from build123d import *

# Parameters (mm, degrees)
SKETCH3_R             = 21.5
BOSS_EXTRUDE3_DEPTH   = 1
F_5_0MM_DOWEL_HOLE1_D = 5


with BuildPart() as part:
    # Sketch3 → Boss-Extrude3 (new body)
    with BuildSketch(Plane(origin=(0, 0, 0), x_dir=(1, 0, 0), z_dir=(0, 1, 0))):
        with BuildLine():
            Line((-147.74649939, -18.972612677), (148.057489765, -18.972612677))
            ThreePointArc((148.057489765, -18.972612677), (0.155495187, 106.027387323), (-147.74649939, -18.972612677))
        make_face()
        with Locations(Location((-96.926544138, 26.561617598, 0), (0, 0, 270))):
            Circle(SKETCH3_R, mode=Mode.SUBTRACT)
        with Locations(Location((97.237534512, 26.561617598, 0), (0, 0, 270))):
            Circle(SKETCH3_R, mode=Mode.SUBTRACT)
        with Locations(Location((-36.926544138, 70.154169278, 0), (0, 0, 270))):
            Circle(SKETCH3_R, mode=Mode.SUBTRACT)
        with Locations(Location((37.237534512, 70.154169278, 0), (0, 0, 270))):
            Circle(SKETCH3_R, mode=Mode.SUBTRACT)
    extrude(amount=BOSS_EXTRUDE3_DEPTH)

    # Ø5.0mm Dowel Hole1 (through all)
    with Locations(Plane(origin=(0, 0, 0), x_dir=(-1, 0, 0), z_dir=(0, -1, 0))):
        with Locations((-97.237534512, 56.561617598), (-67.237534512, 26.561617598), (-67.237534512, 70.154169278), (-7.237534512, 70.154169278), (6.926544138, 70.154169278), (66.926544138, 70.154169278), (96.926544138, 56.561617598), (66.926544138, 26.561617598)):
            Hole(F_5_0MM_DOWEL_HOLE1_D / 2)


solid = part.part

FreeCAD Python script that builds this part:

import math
import FreeCAD as App
import Part
import Sketcher
from FreeCAD import Vector

doc = App.newDocument("Part")
body = doc.addObject("PartDesign::Body", "Body")

# Sketch on XZ plane
sketch1 = body.newObject("Sketcher::SketchObject", "Sketch")
sketch1.AttachmentSupport = (doc.getObject("XZ_Plane"), [""])
sketch1.MapMode = "FlatFace"
sketch1.addGeometry(Part.LineSegment(Vector(-148, 19, 0), Vector(148, 19, 0)), False)
sketch1.addGeometry(Part.ArcOfCircle(Part.Circle(Vector(0, 44, 0), Vector(0, 0, 1), 150), math.radians(-170), math.radians(-10)), False)
sketch1.addGeometry(Part.Circle(Vector(-97, -27, 0), Vector(0, 0, 1), 22), False)
sketch1.addGeometry(Part.Circle(Vector(97, -27, 0), Vector(0, 0, 1), 22), False)
sketch1.addGeometry(Part.Circle(Vector(-37, -70, 0), Vector(0, 0, 1), 22), False)
sketch1.addGeometry(Part.Circle(Vector(37, -70, 0), Vector(0, 0, 1), 22), False)
sketch1.addConstraint(Sketcher.Constraint("Coincident", 0, 1, 1, 1))
sketch1.addConstraint(Sketcher.Constraint("Coincident", 1, 2, 0, 2))
sketch1.addConstraint(Sketcher.Constraint("Horizontal", 0))
sketch1.addConstraint(Sketcher.Constraint("Equal", 2, 3))
sketch1.addConstraint(Sketcher.Constraint("Equal", 3, 4))
sketch1.addConstraint(Sketcher.Constraint("Equal", 4, 5))
sketch1.addConstraint(Sketcher.Constraint("Horizontal", 2, 3, 3, 3))
sketch1.addConstraint(Sketcher.Constraint("Horizontal", 4, 3, 5, 3))
sketch1.addConstraint(Sketcher.Constraint("Diameter", 2, 43.0))
sketch1.addConstraint(Sketcher.Constraint("Radius", 1, 150.0))
sketch1.addConstraint(Sketcher.Constraint("DistanceX", 2, 3, 4, 3, 60.0))
sketch1.addConstraint(Sketcher.Constraint("DistanceX", 5, 3, 3, 3, 60.0))
sketch1.addConstraint(Sketcher.Constraint("DistanceY", 0, 1, 1, 3, 25.0))
sketch1.addConstraint(Sketcher.Constraint("DistanceX", 0, 1, -1, 1, 147.746499))
sketch1.addConstraint(Sketcher.Constraint("DistanceY", 4, 3, -1, 1, 70.154169))
sketch1.addConstraint(Sketcher.Constraint("DistanceX", 2, 3, 1, 3, 97.082039))
sketch1.addConstraint(Sketcher.Constraint("DistanceY", 2, 3, 1, 3, 70.53423))
sketch1.addConstraint(Sketcher.Constraint("DistanceX", 1, 3, 3, 3, 97.082039))
sketch1.addConstraint(Sketcher.Constraint("DistanceY", 4, 3, 2, 3, 43.592552))
pad1 = body.newObject("PartDesign::Pad", "Pad")
pad1.Profile = sketch1
pad1.Length = 1
pad1.Reversed = True

# Sketch on XZ plane
sketch2 = body.newObject("Sketcher::SketchObject", "Sketch001")
sketch2.AttachmentSupport = (doc.getObject("XZ_Plane"), [""])
sketch2.MapMode = "FlatFace"
sketch2.addGeometry(Part.Circle(Vector(97.2, -56.6, 0), Vector(0, 0, 1), 2.5), False)
sketch2.addGeometry(Part.Circle(Vector(67.2, -26.6, 0), Vector(0, 0, 1), 2.5), False)
sketch2.addGeometry(Part.Circle(Vector(67.2, -70.2, 0), Vector(0, 0, 1), 2.5), False)
sketch2.addGeometry(Part.Circle(Vector(7.2, -70.2, 0), Vector(0, 0, 1), 2.5), False)
sketch2.addGeometry(Part.Circle(Vector(-6.9, -70.2, 0), Vector(0, 0, 1), 2.5), False)
sketch2.addGeometry(Part.Circle(Vector(-66.9, -70.2, 0), Vector(0, 0, 1), 2.5), False)
sketch2.addGeometry(Part.Circle(Vector(-96.9, -56.6, 0), Vector(0, 0, 1), 2.5), False)
sketch2.addGeometry(Part.Circle(Vector(-66.9, -26.6, 0), Vector(0, 0, 1), 2.5), False)
sketch2.addConstraint(Sketcher.Constraint("Equal", 0, 1))
sketch2.addConstraint(Sketcher.Constraint("Equal", 1, 2))
sketch2.addConstraint(Sketcher.Constraint("Equal", 2, 3))
sketch2.addConstraint(Sketcher.Constraint("Equal", 3, 4))
sketch2.addConstraint(Sketcher.Constraint("Equal", 4, 5))
sketch2.addConstraint(Sketcher.Constraint("Equal", 5, 6))
sketch2.addConstraint(Sketcher.Constraint("Equal", 6, 7))
sketch2.addConstraint(Sketcher.Constraint("Horizontal", 2, 3, 3, 3))
sketch2.addConstraint(Sketcher.Constraint("Horizontal", 3, 3, 4, 3))
sketch2.addConstraint(Sketcher.Constraint("Horizontal", 4, 3, 5, 3))
sketch2.addConstraint(Sketcher.Constraint("Horizontal", 0, 3, 6, 3))
sketch2.addConstraint(Sketcher.Constraint("Horizontal", 1, 3, 7, 3))
sketch2.addConstraint(Sketcher.Constraint("Vertical", 1, 3, 2, 3))
sketch2.addConstraint(Sketcher.Constraint("Vertical", 5, 3, 7, 3))
sketch2.addConstraint(Sketcher.Constraint("Diameter", 0, 5.0))
sketch2.addConstraint(Sketcher.Constraint("DistanceX", 1, 3, 0, 3, 30.0))
sketch2.addConstraint(Sketcher.Constraint("DistanceY", 0, 3, 1, 3, 30.0))
sketch2.addConstraint(Sketcher.Constraint("DistanceX", 3, 3, 2, 3, 60.0))
sketch2.addConstraint(Sketcher.Constraint("DistanceX", 5, 3, 4, 3, 60.0))
sketch2.addConstraint(Sketcher.Constraint("DistanceX", 6, 3, 5, 3, 30.0))
sketch2.addConstraint(Sketcher.Constraint("DistanceY", 2, 3, -1, 1, 70.154169))
sketch2.addConstraint(Sketcher.Constraint("DistanceY", 2, 3, 0, 3, 13.592552))
sketch2.addConstraint(Sketcher.Constraint("DistanceX", 4, 3, 3, 3, 14.164079))
sketch2.addConstraint(Sketcher.Constraint("DistanceX", -1, 1, 0, 3, 97.237535))
doc.recompute()
hole = body.newObject("PartDesign::Hole", "Hole")
hole.Profile = sketch2
hole.ThreadType = "None"
hole.Diameter = 5
hole.DepthType = "ThroughAll"

doc.recompute()
